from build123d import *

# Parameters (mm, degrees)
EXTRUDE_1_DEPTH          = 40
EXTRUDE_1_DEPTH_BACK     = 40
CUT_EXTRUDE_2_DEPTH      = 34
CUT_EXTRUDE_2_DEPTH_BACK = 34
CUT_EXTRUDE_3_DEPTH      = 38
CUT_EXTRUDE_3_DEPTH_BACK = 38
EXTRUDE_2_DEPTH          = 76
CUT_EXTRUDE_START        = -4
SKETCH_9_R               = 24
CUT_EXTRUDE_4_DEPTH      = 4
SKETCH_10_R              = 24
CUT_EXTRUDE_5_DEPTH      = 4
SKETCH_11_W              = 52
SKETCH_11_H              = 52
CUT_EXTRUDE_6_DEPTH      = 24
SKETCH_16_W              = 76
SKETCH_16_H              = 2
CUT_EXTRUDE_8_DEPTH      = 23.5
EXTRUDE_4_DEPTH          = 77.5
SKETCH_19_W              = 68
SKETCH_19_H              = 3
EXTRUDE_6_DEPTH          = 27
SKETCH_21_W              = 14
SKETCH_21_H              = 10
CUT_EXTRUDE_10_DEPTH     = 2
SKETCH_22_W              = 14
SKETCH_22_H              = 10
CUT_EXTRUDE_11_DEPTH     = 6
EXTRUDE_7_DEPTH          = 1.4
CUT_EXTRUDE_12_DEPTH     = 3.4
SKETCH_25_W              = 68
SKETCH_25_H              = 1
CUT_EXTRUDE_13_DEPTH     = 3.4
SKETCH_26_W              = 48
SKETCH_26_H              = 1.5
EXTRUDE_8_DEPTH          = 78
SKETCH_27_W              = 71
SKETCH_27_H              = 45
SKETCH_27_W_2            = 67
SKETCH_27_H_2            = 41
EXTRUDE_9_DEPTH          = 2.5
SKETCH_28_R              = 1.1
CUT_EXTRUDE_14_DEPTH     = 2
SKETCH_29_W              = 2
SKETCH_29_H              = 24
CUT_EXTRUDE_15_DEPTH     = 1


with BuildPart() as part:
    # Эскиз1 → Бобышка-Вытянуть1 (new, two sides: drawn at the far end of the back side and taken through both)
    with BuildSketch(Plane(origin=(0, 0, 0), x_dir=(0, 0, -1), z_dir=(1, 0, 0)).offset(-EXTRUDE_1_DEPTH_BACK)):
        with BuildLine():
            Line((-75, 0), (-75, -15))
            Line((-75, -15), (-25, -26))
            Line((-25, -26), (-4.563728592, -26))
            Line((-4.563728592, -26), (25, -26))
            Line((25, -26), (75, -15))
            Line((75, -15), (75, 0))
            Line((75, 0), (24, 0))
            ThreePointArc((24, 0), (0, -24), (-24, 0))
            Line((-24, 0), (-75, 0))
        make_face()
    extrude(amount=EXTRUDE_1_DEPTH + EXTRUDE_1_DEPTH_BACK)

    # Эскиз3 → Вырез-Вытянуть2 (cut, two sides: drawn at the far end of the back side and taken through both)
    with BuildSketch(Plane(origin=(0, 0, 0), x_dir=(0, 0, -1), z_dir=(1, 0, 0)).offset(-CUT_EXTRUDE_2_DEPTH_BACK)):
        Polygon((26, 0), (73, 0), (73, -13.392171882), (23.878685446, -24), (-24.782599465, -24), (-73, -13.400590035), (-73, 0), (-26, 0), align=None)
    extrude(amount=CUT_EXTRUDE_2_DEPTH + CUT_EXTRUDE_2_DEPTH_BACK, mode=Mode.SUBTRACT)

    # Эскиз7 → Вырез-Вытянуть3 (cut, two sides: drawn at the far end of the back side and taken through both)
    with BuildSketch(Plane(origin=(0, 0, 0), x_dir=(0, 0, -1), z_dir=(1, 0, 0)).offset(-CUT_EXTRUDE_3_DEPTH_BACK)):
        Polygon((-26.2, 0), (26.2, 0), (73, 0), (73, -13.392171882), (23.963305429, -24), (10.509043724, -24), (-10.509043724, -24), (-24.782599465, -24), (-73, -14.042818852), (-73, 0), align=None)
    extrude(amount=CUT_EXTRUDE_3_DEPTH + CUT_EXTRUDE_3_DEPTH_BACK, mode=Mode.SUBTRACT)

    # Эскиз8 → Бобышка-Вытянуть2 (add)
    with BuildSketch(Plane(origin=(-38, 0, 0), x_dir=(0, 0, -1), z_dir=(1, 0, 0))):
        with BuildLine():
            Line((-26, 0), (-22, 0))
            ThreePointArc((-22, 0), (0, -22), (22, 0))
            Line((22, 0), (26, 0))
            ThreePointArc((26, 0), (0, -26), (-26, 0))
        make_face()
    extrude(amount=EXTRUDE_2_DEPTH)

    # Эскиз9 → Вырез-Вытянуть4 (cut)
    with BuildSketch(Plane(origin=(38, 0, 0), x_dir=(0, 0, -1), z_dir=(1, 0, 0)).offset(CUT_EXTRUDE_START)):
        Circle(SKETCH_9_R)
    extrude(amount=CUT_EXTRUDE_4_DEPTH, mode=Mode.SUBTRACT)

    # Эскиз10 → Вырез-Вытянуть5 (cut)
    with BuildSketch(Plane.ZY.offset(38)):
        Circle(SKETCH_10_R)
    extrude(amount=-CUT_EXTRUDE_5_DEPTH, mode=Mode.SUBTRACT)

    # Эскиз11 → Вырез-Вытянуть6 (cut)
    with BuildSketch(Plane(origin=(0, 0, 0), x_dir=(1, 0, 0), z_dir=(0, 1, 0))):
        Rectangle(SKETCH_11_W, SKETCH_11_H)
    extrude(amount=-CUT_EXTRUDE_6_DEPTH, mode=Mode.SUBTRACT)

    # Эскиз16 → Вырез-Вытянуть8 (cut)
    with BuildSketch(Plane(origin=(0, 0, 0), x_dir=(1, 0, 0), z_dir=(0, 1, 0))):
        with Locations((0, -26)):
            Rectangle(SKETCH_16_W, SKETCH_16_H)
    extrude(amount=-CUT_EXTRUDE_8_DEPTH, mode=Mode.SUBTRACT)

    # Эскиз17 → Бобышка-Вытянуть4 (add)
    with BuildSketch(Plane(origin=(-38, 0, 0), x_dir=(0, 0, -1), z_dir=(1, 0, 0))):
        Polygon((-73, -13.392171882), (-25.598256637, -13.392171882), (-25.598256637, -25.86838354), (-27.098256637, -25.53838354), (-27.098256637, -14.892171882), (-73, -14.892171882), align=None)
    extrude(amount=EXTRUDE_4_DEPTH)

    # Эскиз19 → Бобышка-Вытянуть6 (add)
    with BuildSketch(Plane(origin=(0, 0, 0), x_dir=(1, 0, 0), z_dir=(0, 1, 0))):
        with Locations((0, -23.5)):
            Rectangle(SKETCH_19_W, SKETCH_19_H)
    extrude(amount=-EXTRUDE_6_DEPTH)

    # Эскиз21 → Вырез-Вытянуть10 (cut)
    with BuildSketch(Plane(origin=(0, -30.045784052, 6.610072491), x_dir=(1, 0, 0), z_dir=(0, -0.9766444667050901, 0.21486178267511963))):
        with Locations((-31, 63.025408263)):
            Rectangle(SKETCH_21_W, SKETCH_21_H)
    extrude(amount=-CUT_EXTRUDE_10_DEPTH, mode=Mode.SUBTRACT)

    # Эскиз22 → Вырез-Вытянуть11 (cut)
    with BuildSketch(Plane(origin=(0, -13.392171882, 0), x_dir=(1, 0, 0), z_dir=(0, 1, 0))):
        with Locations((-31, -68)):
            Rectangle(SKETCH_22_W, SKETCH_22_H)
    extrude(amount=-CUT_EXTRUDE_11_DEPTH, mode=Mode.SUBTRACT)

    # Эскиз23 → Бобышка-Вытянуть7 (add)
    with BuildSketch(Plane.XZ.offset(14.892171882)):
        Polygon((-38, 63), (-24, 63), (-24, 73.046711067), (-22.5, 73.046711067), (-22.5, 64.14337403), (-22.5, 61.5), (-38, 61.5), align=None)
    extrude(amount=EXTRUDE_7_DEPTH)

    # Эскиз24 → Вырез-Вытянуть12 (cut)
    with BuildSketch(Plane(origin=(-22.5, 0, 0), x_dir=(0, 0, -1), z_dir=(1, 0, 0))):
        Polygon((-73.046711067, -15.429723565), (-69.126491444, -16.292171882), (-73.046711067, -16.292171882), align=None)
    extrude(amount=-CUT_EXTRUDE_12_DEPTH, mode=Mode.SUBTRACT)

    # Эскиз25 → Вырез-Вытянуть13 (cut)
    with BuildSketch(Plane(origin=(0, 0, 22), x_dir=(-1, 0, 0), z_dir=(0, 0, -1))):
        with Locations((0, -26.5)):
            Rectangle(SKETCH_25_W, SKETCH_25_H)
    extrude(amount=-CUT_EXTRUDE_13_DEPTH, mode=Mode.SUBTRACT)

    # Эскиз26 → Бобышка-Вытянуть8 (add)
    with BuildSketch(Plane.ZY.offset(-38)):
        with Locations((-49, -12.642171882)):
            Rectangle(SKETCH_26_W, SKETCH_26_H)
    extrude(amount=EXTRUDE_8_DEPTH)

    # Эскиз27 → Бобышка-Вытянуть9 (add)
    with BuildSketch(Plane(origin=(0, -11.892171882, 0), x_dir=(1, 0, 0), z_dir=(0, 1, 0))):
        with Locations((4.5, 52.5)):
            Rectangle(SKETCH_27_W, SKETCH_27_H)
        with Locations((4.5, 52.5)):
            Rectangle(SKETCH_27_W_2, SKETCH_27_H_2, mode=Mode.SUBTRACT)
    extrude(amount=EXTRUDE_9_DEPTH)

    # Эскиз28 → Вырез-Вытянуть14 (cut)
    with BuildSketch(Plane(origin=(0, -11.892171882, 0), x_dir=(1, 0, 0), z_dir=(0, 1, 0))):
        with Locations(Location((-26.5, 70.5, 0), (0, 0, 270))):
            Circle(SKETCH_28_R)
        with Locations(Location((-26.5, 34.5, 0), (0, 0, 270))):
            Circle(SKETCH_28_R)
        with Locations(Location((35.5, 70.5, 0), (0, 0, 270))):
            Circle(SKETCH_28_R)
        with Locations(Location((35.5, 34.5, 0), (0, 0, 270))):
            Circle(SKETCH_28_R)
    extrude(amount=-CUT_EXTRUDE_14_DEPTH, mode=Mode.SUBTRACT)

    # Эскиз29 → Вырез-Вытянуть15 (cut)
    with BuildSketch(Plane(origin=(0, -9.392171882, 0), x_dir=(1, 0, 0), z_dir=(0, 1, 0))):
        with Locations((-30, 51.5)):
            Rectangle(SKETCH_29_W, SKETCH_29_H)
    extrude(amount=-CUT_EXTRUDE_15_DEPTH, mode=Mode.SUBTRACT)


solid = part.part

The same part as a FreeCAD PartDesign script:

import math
import FreeCAD as App
import Part
import Sketcher
from FreeCAD import Vector


def add_polygon(sketch, points):
    """Adds a closed chain of lines whose ends are joined by coincident constraints."""
    first, n = sketch.GeometryCount, len(points)
    for a, b in zip(points, points[1:] + points[:1]):
        sketch.addGeometry(Part.LineSegment(App.Vector(*a, 0), App.Vector(*b, 0)), False)
    for i in range(n):
        sketch.addConstraint(Sketcher.Constraint("Coincident", first + i, 2, first + (i + 1) % n, 1))

doc = App.newDocument("Part")
params = doc.addObject("Spreadsheet::Sheet", "Params")
for row, (alias, value) in enumerate([
    ("sketch1_radius", "24 mm"),
    ("sketch1_width", "15 mm"),
    ("sketch1_height", "50 mm"),
    ("sketch1_height2", "51 mm"),
    ("pad1_length", "40 mm"),
    ("pad1_length2", "40 mm"),
    ("sketch2_height", "146 mm"),
    ("pocket1_length", "34 mm"),
    ("pocket1_length2", "34 mm"),
    ("sketch3_height", "146 mm"),
    ("pocket2_length", "38 mm"),
    ("pocket2_length2", "38 mm"),
    ("sketch4_radius", "26 mm"),
    ("sketch4_radius2", "22 mm"),
    ("pad2_length", "76 mm"),
    ("sketch5_diameter", "48 mm"),
    ("pocket3_length", "4 mm"),
    ("sketch6_diameter", "48 mm"),
    ("pocket4_length", "4 mm"),
    ("sketch7_width", "52 mm"),
    ("pocket5_length", "24 mm"),
    ("sketch8_width", "76 mm"),
    ("sketch8_height", "2 mm"),
    ("pocket6_length", "23.5 mm"),
    ("sketch9_width", "1.5 mm"),
    ("pad3_length", "77.5 mm"),
    ("sketch10_width", "68 mm"),
    ("sketch10_height", "3 mm"),
    ("pad4_length", "27 mm"),
    ("sketch11_width", "14 mm"),
    ("sketch11_height", "10 mm"),
    ("pocket7_length", "2 mm"),
    ("sketch12_width", "14 mm"),
    ("sketch12_height", "10 mm"),
    ("pocket8_length", "6 mm"),
    ("sketch13_width", "14 mm"),
    ("sketch13_width2", "15.5 mm"),
    ("pad5_length", "1.4 mm"),
    ("pocket9_length", "3.4 mm"),
    ("sketch15_width", "68 mm"),
    ("sketch15_height", "1 mm"),
    ("pocket10_length", "3.4 mm"),
    ("sketch16_height", "48 mm"),
    ("sketch16_width", "1.5 mm"),
    ("pad6_length", "78 mm"),
    ("sketch17_width", "71 mm"),
    ("sketch17_width2", "67 mm"),
    ("sketch17_height", "45 mm"),
    ("sketch17_height2", "41 mm"),
    ("pad7_length", "2.5 mm"),
    ("sketch18_diameter", "2.2 mm"),
    ("pocket11_length", "2 mm"),
    ("sketch19_width", "2 mm"),
    ("sketch19_height", "24 mm"),
    ("pocket12_length", "1 mm"),
], start=1):
    params.set(f"A{row}", alias)
    params.set(f"B{row}", "=" + value)
    params.setAlias(f"B{row}", alias)

body = doc.addObject("PartDesign::Body", "Body")

sketch1 = body.newObject("Sketcher::SketchObject", "Sketch")
sketch1.AttachmentSupport = (doc.getObject("YZ_Plane"), [""])
sketch1.MapMode = "FlatFace"
sketch1.addGeometry([
    Part.LineSegment(Vector(0, 75, 0), Vector(-15, 75, 0)),
    Part.LineSegment(Vector(-15, 75, 0), Vector(-26, 25, 0)),
    Part.LineSegment(Vector(-26, 25, 0), Vector(-26, -25, 0)),
    Part.LineSegment(Vector(-26, -25, 0), Vector(-15, -75, 0)),
    Part.LineSegment(Vector(-15, -75, 0), Vector(0, -75, 0)),
    Part.LineSegment(Vector(0, -75, 0), Vector(0, -24, 0)),
    Part.ArcOfCircle(Part.Circle(Vector(0, 0, 0), Vector(0, 0, 1), 24), math.radians(90), math.radians(270)),
    Part.LineSegment(Vector(0, 24, 0), Vector(0, 75, 0)),
], False)
sketch1.addConstraint([
    Sketcher.Constraint("Coincident", 0, 2, 1, 1),
    Sketcher.Constraint("Coincident", 1, 2, 2, 1),
    Sketcher.Constraint("Coincident", 2, 2, 3, 1),
    Sketcher.Constraint("Coincident", 3, 2, 4, 1),
    Sketcher.Constraint("Coincident", 4, 2, 5, 1),
    Sketcher.Constraint("Coincident", 5, 2, 6, 2),
    Sketcher.Constraint("Coincident", 6, 1, 7, 1),
    Sketcher.Constraint("Coincident", 7, 2, 0, 1),
    Sketcher.Constraint("Horizontal", 0),
    Sketcher.Constraint("Vertical", 2),
    Sketcher.Constraint("Horizontal", 4),
    Sketcher.Constraint("Vertical", 5),
    Sketcher.Constraint("Vertical", 7),
    Sketcher.Constraint("Coincident", 6, 3, -1, 1),
    Sketcher.Constraint("Symmetric", 4, 2, 7, 2, -1, 1),
    Sketcher.Constraint("PointOnObject", 4, 2, -2),
    Sketcher.Constraint("Vertical", 0, 2, 3, 2),
    Sketcher.Constraint("Equal", 1, 3),
    Sketcher.Constraint("Radius", 6, 24.0),
    Sketcher.Constraint("DistanceX", 0, 2, 0, 1, 15.0),
    Sketcher.Constraint("DistanceY", 2, 2, 2, 1, 50.0),
    Sketcher.Constraint("DistanceY", 5, 1, 5, 2, 51.0),
    Sketcher.Constraint("DistanceX", 1, 2, -1, 1, 26.0),
])
sketch1.setExpression("Constraints[18]", "Params.sketch1_radius")
sketch1.setExpression("Constraints[19]", "Params.sketch1_width")
sketch1.setExpression("Constraints[20]", "Params.sketch1_height")
sketch1.setExpression("Constraints[21]", "Params.sketch1_height2")
pad1 = body.newObject("PartDesign::Pad", "Pad")
pad1.Profile = sketch1
pad1.Type = "TwoLengths"
pad1.setExpression("Length", "Params.pad1_length")
pad1.setExpression("Length2", "Params.pad1_length2")

sketch2 = body.newObject("Sketcher::SketchObject", "Sketch001")
sketch2.AttachmentSupport = (doc.getObject("YZ_Plane"), [""])
sketch2.MapMode = "FlatFace"
add_polygon(sketch2, [(0, -73), (0, 73), (-13, 73), (-24, 25), (-24, -24), (-13, -73)])
sketch2.addConstraint([
    Sketcher.Constraint("Vertical", 0),
    Sketcher.Constraint("Horizontal", 1),
    Sketcher.Constraint("Vertical", 3),
    Sketcher.Constraint("Horizontal", 5),
    Sketcher.Constraint("Symmetric", 0, 2, 5, 2, -1, 1),
    Sketcher.Constraint("DistanceY", 0, 1, 0, 2, 146.0),
    Sketcher.Constraint("DistanceX", 2, 2, -1, 1, 24.0),
    Sketcher.Constraint("DistanceX", 1, 2, 1, 1, 13.40059),
    Sketcher.Constraint("DistanceX", 5, 1, 5, 2, 13.392172),
    Sketcher.Constraint("DistanceY", -1, 1, 2, 2, 24.782599),
    Sketcher.Constraint("DistanceY", 3, 2, 3, 1, 48.661285),
])
sketch2.setExpression("Constraints[11]", "Params.sketch2_height")
pocket1 = body.newObject("PartDesign::Pocket", "Pocket")
pocket1.Profile = sketch2
pocket1.Type = "TwoLengths"
pocket1.setExpression("Length", "Params.pocket1_length")
pocket1.setExpression("Length2", "Params.pocket1_length2")
pocket1.Reversed = True

sketch3 = body.newObject("Sketcher::SketchObject", "Sketch002")
sketch3.AttachmentSupport = (doc.getObject("YZ_Plane"), [""])
sketch3.MapMode = "FlatFace"
add_polygon(sketch3, [(0, -73), (0, 73), (-14, 73), (-24, 25), (-24, -24), (-13, -73)])
sketch3.addConstraint([
    Sketcher.Constraint("Vertical", 0),
    Sketcher.Constraint("Horizontal", 1),
    Sketcher.Constraint("Vertical", 3),
    Sketcher.Constraint("Horizontal", 5),
    Sketcher.Constraint("Symmetric", 0, 2, 5, 2, -1, 1),
    Sketcher.Constraint("DistanceY", 0, 1, 0, 2, 146.0),
    Sketcher.Constraint("DistanceX", 2, 2, -1, 1, 24.0),
    Sketcher.Constraint("DistanceX", 1, 2, 1, 1, 14.042819),
    Sketcher.Constraint("DistanceX", 5, 1, 5, 2, 13.392172),
    Sketcher.Constraint("DistanceY", -1, 1, 2, 2, 24.782599),
    Sketcher.Constraint("DistanceY", 3, 2, 3, 1, 48.745905),
])
sketch3.setExpression("Constraints[11]", "Params.sketch3_height")
pocket2 = body.newObject("PartDesign::Pocket", "Pocket001")
pocket2.Profile = sketch3
pocket2.Type = "TwoLengths"
pocket2.setExpression("Length", "Params.pocket2_length")
pocket2.setExpression("Length2", "Params.pocket2_length2")
pocket2.Reversed = True

sketch4 = body.newObject("Sketcher::SketchObject", "Sketch003")
sketch4.AttachmentSupport = (doc.getObject("YZ_Plane"), [""])
sketch4.MapMode = "FlatFace"
sketch4.AttachmentOffset = App.Placement(Vector(0, 0, -38), App.Rotation())
sketch4.addGeometry([
    Part.LineSegment(Vector(0, 22, 0), Vector(0, 26, 0)),
    Part.ArcOfCircle(Part.Circle(Vector(0, 0, 0), Vector(0, 0, 1), 26), math.radians(90), math.radians(270)),
    Part.LineSegment(Vector(0, -26, 0), Vector(0, -22, 0)),
    Part.ArcOfCircle(Part.Circle(Vector(0, 0, 0), Vector(0, 0, 1), 22), math.radians(90), math.radians(270)),
], False)
sketch4.addConstraint([
    Sketcher.Constraint("Coincident", 0, 2, 1, 1),
    Sketcher.Constraint("Coincident", 1, 2, 2, 1),
    Sketcher.Constraint("Coincident", 2, 2, 3, 2),
    Sketcher.Constraint("Coincident", 3, 1, 0, 1),
    Sketcher.Constraint("Vertical", 0),
    Sketcher.Constraint("Vertical", 2),
    Sketcher.Constraint("Coincident", 1, 3, -1, 1),
    Sketcher.Constraint("Coincident", 3, 3, -1, 1),
    Sketcher.Constraint("PointOnObject", 0, 2, -2),
    Sketcher.Constraint("PointOnObject", 1, 2, -2),
    Sketcher.Constraint("Radius", 1, 26.0),
    Sketcher.Constraint("Radius", 3, 22.0),
])
sketch4.setExpression("Constraints[10]", "Params.sketch4_radius")
sketch4.setExpression("Constraints[11]", "Params.sketch4_radius2")
pad2 = body.newObject("PartDesign::Pad", "Pad001")
pad2.Profile = sketch4
pad2.setExpression("Length", "Params.pad2_length")

sketch5 = body.newObject("Sketcher::SketchObject", "Sketch004")
sketch5.AttachmentSupport = (doc.getObject("YZ_Plane"), [""])
sketch5.MapMode = "FlatFace"
sketch5.AttachmentOffset = App.Placement(Vector(0, 0, 34), App.Rotation())
sketch5.addGeometry(Part.Circle(Vector(0, 0, 0), Vector(0, 0, 1), 24), False)
sketch5.addConstraint([
    Sketcher.Constraint("Coincident", 0, 3, -1, 1),
    Sketcher.Constraint("Diameter", 0, 48.0),
])
sketch5.setExpression("Constraints[1]", "Params.sketch5_diameter")
pocket3 = body.newObject("PartDesign::Pocket", "Pocket002")
pocket3.Profile = sketch5
pocket3.setExpression("Length", "Params.pocket3_length")
pocket3.Reversed = True

sketch6 = body.newObject("Sketcher::SketchObject", "Sketch005")
sketch6.AttachmentSupport = (doc.getObject("YZ_Plane"), [""])
sketch6.MapMode = "FlatFace"
sketch6.AttachmentOffset = App.Placement(Vector(0, 0, -38), App.Rotation())
sketch6.addGeometry(Part.Circle(Vector(0, 0, 0), Vector(0, 0, 1), 24), False)
sketch6.addConstraint([
    Sketcher.Constraint("Coincident", 0, 3, -1, 1),
    Sketcher.Constraint("Diameter", 0, 48.0),
])
sketch6.setExpression("Constraints[1]", "Params.sketch6_diameter")
pocket4 = body.newObject("PartDesign::Pocket", "Pocket003")
pocket4.Profile = sketch6
pocket4.setExpression("Length", "Params.pocket4_length")
pocket4.Reversed = True

sketch7 = body.newObject("Sketcher::SketchObject", "Sketch006")
sketch7.AttachmentSupport = (doc.getObject("XZ_Plane"), [""])
sketch7.MapMode = "FlatFace"
add_polygon(sketch7, [(-26, -26), (-26, 26), (26, 26), (26, -26)])
sketch7.addConstraint([
    Sketcher.Constraint("Vertical", 0),
    Sketcher.Constraint("Horizontal", 1),
    Sketcher.Constraint("Vertical", 2),
    Sketcher.Constraint("Horizontal", 3),
    Sketcher.Constraint("Symmetric", 0, 2, 2, 2, -1, 1),
    Sketcher.Constraint("Equal", 3, 0),
    Sketcher.Constraint("DistanceX", 1, 1, 1, 2, 52.0),
])
sketch7.setExpression("Constraints[10]", "Params.sketch7_width")
pocket5 = body.newObject("PartDesign::Pocket", "Pocket004")
pocket5.Profile = sketch7
pocket5.setExpression("Length", "Params.pocket5_length")
pocket5.Reversed = True

sketch8 = body.newObject("Sketcher::SketchObject", "Sketch007")
sketch8.AttachmentSupport = (doc.getObject("XZ_Plane"), [""])
sketch8.MapMode = "FlatFace"
add_polygon(sketch8, [(-38, 25), (-38, 27), (38, 27), (38, 25)])
sketch8.addConstraint([
    Sketcher.Constraint("Vertical", 0),
    Sketcher.Constraint("Horizontal", 1),
    Sketcher.Constraint("Vertical", 2),
    Sketcher.Constraint("Horizontal", 3),
    Sketcher.Constraint("DistanceX", 1, 1, 1, 2, 76.0),
    Sketcher.Constraint("DistanceY", 0, 1, 0, 2, 2.0),
    Sketcher.Constraint("DistanceX", 0, 2, -1, 1, 38.0),
    Sketcher.Constraint("DistanceY", -1, 1, 0, 2, 27.0),
])
sketch8.setExpression("Constraints[8]", "Params.sketch8_width")
sketch8.setExpression("Constraints[9]", "Params.sketch8_height")
pocket6 = body.newObject("PartDesign::Pocket", "Pocket005")
pocket6.Profile = sketch8
pocket6.setExpression("Length", "Params.pocket6_length")
pocket6.Reversed = True

sketch9 = body.newObject("Sketcher::SketchObject", "Sketch008")
sketch9.AttachmentSupport = (doc.getObject("YZ_Plane"), [""])
sketch9.MapMode = "FlatFace"
sketch9.AttachmentOffset = App.Placement(Vector(0, 0, -38), App.Rotation())
add_polygon(sketch9, [(-13.4, 25.6), (-13.4, 73), (-14.9, 73), (-14.9, 27.1), (-25.5, 27.1), (-25.9, 25.6)])
sketch9.addConstraint([
    Sketcher.Constraint("Vertical", 0),
    Sketcher.Constraint("Horizontal", 1),
    Sketcher.Constraint("Vertical", 2),
    Sketcher.Constraint("Horizontal", 3),
    Sketcher.Constraint("Horizontal", 5),
    Sketcher.Constraint("DistanceX", 1, 2, 1, 1, 1.5),
    Sketcher.Constraint("DistanceY", -1, 1, 0, 2, 73.0),
    Sketcher.Constraint("DistanceY", 4, 2, 3, 2, 1.5),
    Sketcher.Constraint("DistanceX", 4, 2, 3, 2, 0.33),
    Sketcher.Constraint("DistanceX", 3, 2, 3, 1, 10.646212),
    Sketcher.Constraint("DistanceY", 0, 1, 0, 2, 47.401743),
    Sketcher.Constraint("DistanceX", 0, 2, -1, 1, 13.392172),
])
sketch9.setExpression("Constraints[11]", "Params.sketch9_width")
pad3 = body.newObject("PartDesign::Pad", "Pad002")
pad3.Profile = sketch9
pad3.setExpression("Length", "Params.pad3_length")

sketch10 = body.newObject("Sketcher::SketchObject", "Sketch009")
sketch10.AttachmentSupport = (doc.getObject("XZ_Plane"), [""])
sketch10.MapMode = "FlatFace"
add_polygon(sketch10, [(-34, 22), (-34, 25), (34, 25), (34, 22)])
sketch10.addConstraint([
    Sketcher.Constraint("Vertical", 0),
    Sketcher.Constraint("Horizontal", 1),
    Sketcher.Constraint("Vertical", 2),
    Sketcher.Constraint("Horizontal", 3),
    Sketcher.Constraint("DistanceX", 1, 1, 1, 2, 68.0),
    Sketcher.Constraint("DistanceY", 0, 1, 0, 2, 3.0),
    Sketcher.Constraint("DistanceX", 0, 2, -1, 1, 34.0),
    Sketcher.Constraint("DistanceY", -1, 1, 0, 2, 25.0),
])
sketch10.setExpression("Constraints[8]", "Params.sketch10_width")
sketch10.setExpression("Constraints[9]", "Params.sketch10_height")
pad4 = body.newObject("PartDesign::Pad", "Pad003")
pad4.Profile = sketch10
pad4.setExpression("Length", "Params.pad4_length")

sketch11 = body.newObject("Sketcher::SketchObject", "Sketch010")
sketch11.Placement = App.Placement(Vector(0, -30.045784, 6.610072), App.Rotation(Vector(1, 0, 0), Vector(0, 0.214861783, 0.976644467), Vector(0, -0.976644467, 0.214861783), "ZXY"))
add_polygon(sketch11, [(-38, 68), (-38, 58), (-24, 58), (-24, 68)])
sketch11.addConstraint([
    Sketcher.Constraint("Vertical", 0),
    Sketcher.Constraint("Horizontal", 1),
    Sketcher.Constraint("Vertical", 2),
    Sketcher.Constraint("Horizontal", 3),
    Sketcher.Constraint("DistanceX", 1, 1, 1, 2, 14.0),
    Sketcher.Constraint("DistanceY", 0, 2, 0, 1, 10.0),
    Sketcher.Constraint("DistanceX", 0, 2, -1, 1, 38.0),
    Sketcher.Constraint("DistanceY", -1, 1, 0, 2, 58.025408),
])
sketch11.setExpression("Constraints[8]", "Params.sketch11_width")
sketch11.setExpression("Constraints[9]", "Params.sketch11_height")
pocket7 = body.newObject("PartDesign::Pocket", "Pocket006")
pocket7.Profile = sketch11
pocket7.setExpression("Length", "Params.pocket7_length")

sketch12 = body.newObject("Sketcher::SketchObject", "Sketch011")
sketch12.AttachmentSupport = (doc.getObject("XZ_Plane"), [""])
sketch12.MapMode = "FlatFace"
sketch12.AttachmentOffset = App.Placement(Vector(0, 0, 13.392172), App.Rotation())
add_polygon(sketch12, [(-38, 63), (-38, 73), (-24, 73), (-24, 63)])
sketch12.addConstraint([
    Sketcher.Constraint("Vertical", 0),
    Sketcher.Constraint("Horizontal", 1),
    Sketcher.Constraint("Vertical", 2),
    Sketcher.Constraint("Horizontal", 3),
    Sketcher.Constraint("DistanceX", 1, 1, 1, 2, 14.0),
    Sketcher.Constraint("DistanceY", 0, 1, 0, 2, 10.0),
    Sketcher.Constraint("DistanceX", 0, 2, -1, 1, 38.0),
    Sketcher.Constraint("DistanceY", -1, 1, 0, 2, 73.0),
])
sketch12.setExpression("Constraints[8]", "Params.sketch12_width")
sketch12.setExpression("Constraints[9]", "Params.sketch12_height")
pocket8 = body.newObject("PartDesign::Pocket", "Pocket007")
pocket8.Profile = sketch12
pocket8.setExpression("Length", "Params.pocket8_length")
pocket8.Reversed = True

sketch13 = body.newObject("Sketcher::SketchObject", "Sketch012")
sketch13.AttachmentSupport = (doc.getObject("XZ_Plane"), [""])
sketch13.MapMode = "FlatFace"
sketch13.AttachmentOffset = App.Placement(Vector(0, 0, 14.892172), App.Rotation())
add_polygon(sketch13, [(-24, 63), (-38, 63), (-38, 61.5), (-22.5, 61.5), (-22.5, 73), (-24, 73)])
sketch13.addConstraint([
    Sketcher.Constraint("Horizontal", 0),
    Sketcher.Constraint("Vertical", 1),
    Sketcher.Constraint("Horizontal", 2),
    Sketcher.Constraint("Vertical", 3),
    Sketcher.Constraint("Horizontal", 4),
    Sketcher.Constraint("Vertical", 5),
    Sketcher.Constraint("Equal", 4, 1),
    Sketcher.Constraint("DistanceX", 0, 2, 0, 1, 14.0),
    Sketcher.Constraint("DistanceX", 2, 1, 2, 2, 15.5),
    Sketcher.Constraint("DistanceX", 0, 2, -1, 1, 38.0),
    Sketcher.Constraint("DistanceY", -1, 1, 0, 2, 63.0),
    Sketcher.Constraint("DistanceY", 3, 1, 3, 2, 11.546711),
])
sketch13.setExpression("Constraints[13]", "Params.sketch13_width")
sketch13.setExpression("Constraints[14]", "Params.sketch13_width2")
pad5 = body.newObject("PartDesign::Pad", "Pad004")
pad5.Profile = sketch13
pad5.setExpression("Length", "Params.pad5_length")

sketch14 = body.newObject("Sketcher::SketchObject", "Sketch013")
sketch14.AttachmentSupport = (doc.getObject("YZ_Plane"), [""])
sketch14.MapMode = "FlatFace"
sketch14.AttachmentOffset = App.Placement(Vector(0, 0, -22.5), App.Rotation())
add_polygon(sketch14, [(-16.3, 69.1), (-15.4, 73), (-16.3, 73)])
sketch14.addConstraint([
    Sketcher.Constraint("Horizontal", 1),
    Sketcher.Constraint("Vertical", 2),
    Sketcher.Constraint("DistanceX", 1, 2, 1, 1, 0.862448),
    Sketcher.Constraint("DistanceY", 2, 2, 2, 1, 3.92022),
    Sketcher.Constraint("DistanceY", -1, 1, 0, 2, 73.046711),
    Sketcher.Constraint("DistanceX", 1, 2, -1, 1, 16.292172),
])
pocket9 = body.newObject("PartDesign::Pocket", "Pocket008")
pocket9.Profile = sketch14
pocket9.setExpression("Length", "Params.pocket9_length")

sketch15 = body.newObject("Sketcher::SketchObject", "Sketch014")
sketch15.AttachmentSupport = (doc.getObject("XY_Plane"), [""])
sketch15.MapMode = "FlatFace"
sketch15.AttachmentOffset = App.Placement(Vector(0, 0, 22), App.Rotation())
add_polygon(sketch15, [(34, -26), (34, -27), (-34, -27), (-34, -26)])
sketch15.addConstraint([
    Sketcher.Constraint("Vertical", 0),
    Sketcher.Constraint("Horizontal", 1),
    Sketcher.Constraint("Vertical", 2),
    Sketcher.Constraint("Horizontal", 3),
    Sketcher.Constraint("DistanceX", 1, 2, 1, 1, 68.0),
    Sketcher.Constraint("DistanceY", 0, 2, 0, 1, 1.0),
    Sketcher.Constraint("DistanceX", -1, 1, 0, 2, 34.0),
    Sketcher.Constraint("DistanceY", 0, 2, -1, 1, 27.0),
])
sketch15.setExpression("Constraints[8]", "Params.sketch15_width")
sketch15.setExpression("Constraints[9]", "Params.sketch15_height")
pocket10 = body.newObject("PartDesign::Pocket", "Pocket009")
pocket10.Profile = sketch15
pocket10.setExpression("Length", "Params.pocket10_length")
pocket10.Reversed = True

sketch16 = body.newObject("Sketcher::SketchObject", "Sketch015")
sketch16.AttachmentSupport = (doc.getObject("YZ_Plane"), [""])
sketch16.MapMode = "FlatFace"
sketch16.AttachmentOffset = App.Placement(Vector(0, 0, 38), App.Rotation())
add_polygon(sketch16, [(-11.9, -73), (-13.4, -73), (-13.4, -25), (-11.9, -25)])
sketch16.addConstraint([
    Sketcher.Constraint("Horizontal", 0),
    Sketcher.Constraint("Vertical", 1),
    Sketcher.Constraint("Horizontal", 2),
    Sketcher.Constraint("Vertical", 3),
    Sketcher.Constraint("DistanceY", 1, 1, 1, 2, 48.0),
    Sketcher.Constraint("DistanceX", 0, 2, 0, 1, 1.5),
    Sketcher.Constraint("DistanceY", 0, 2, -1, 1, 73.0),
    Sketcher.Constraint("DistanceX", 0, 2, -1, 1, 13.392172),
])
sketch16.setExpression("Constraints[8]", "Params.sketch16_height")
sketch16.setExpression("Constraints[9]", "Params.sketch16_width")
pad6 = body.newObject("PartDesign::Pad", "Pad005")
pad6.Profile = sketch16
pad6.setExpression("Length", "Params.pad6_length")
pad6.Reversed = True

sketch17 = body.newObject("Sketcher::SketchObject", "Sketch016")
sketch17.AttachmentSupport = (doc.getObject("XZ_Plane"), [""])
sketch17.MapMode = "FlatFace"
sketch17.AttachmentOffset = App.Placement(Vector(0, 0, 11.892172), App.Rotation())
add_polygon(sketch17, [(-31, -75), (-31, -30), (40, -30), (40, -75)])
add_polygon(sketch17, [(38, -32), (-29, -32), (-29, -73), (38, -73)])
sketch17.addConstraint([
    Sketcher.Constraint("Vertical", 0),
    Sketcher.Constraint("Horizontal", 1),
    Sketcher.Constraint("Vertical", 2),
    Sketcher.Constraint("Horizontal", 3),
    Sketcher.Constraint("Horizontal", 4),
    Sketcher.Constraint("Vertical", 5),
    Sketcher.Constraint("Horizontal", 6),
    Sketcher.Constraint("Vertical", 7),
    Sketcher.Constraint("DistanceX", 1, 1, 1, 2, 71.0),
    Sketcher.Constraint("DistanceX", 4, 2, 4, 1, 67.0),
    Sketcher.Constraint("DistanceY", 0, 1, 0, 2, 45.0),
    Sketcher.Constraint("DistanceY", 5, 2, 5, 1, 41.0),
    Sketcher.Constraint("DistanceX", 0, 2, -1, 1, 31.0),
    Sketcher.Constraint("DistanceY", 0, 2, -1, 1, 30.0),
    Sketcher.Constraint("DistanceX", 4, 2, -1, 1, 29.0),
    Sketcher.Constraint("DistanceY", 4, 2, -1, 1, 32.0),
])
sketch17.setExpression("Constraints[16]", "Params.sketch17_width")
sketch17.setExpression("Constraints[17]", "Params.sketch17_width2")
sketch17.setExpression("Constraints[18]", "Params.sketch17_height")
sketch17.setExpression("Constraints[19]", "Params.sketch17_height2")
pad7 = body.newObject("PartDesign::Pad", "Pad006")
pad7.Profile = sketch17
pad7.setExpression("Length", "Params.pad7_length")
pad7.Reversed = True

sketch18 = body.newObject("Sketcher::SketchObject", "Sketch017")
sketch18.AttachmentSupport = (doc.getObject("XZ_Plane"), [""])
sketch18.MapMode = "FlatFace"
sketch18.AttachmentOffset = App.Placement(Vector(0, 0, 11.892172), App.Rotation())
sketch18.addGeometry([
    Part.Circle(Vector(-26.5, -70.5, 0), Vector(0, 0, 1), 1.1),
    Part.Circle(Vector(-26.5, -34.5, 0), Vector(0, 0, 1), 1.1),
    Part.Circle(Vector(35.5, -70.5, 0), Vector(0, 0, 1), 1.1),
    Part.Circle(Vector(35.5, -34.5, 0), Vector(0, 0, 1), 1.1),
], False)
sketch18.addConstraint([
    Sketcher.Constraint("Equal", 0, 1),
    Sketcher.Constraint("Equal", 1, 2),
    Sketcher.Constraint("Equal", 2, 3),
    Sketcher.Constraint("Horizontal", 0, 3, 2, 3),
    Sketcher.Constraint("Horizontal", 1, 3, 3, 3),
    Sketcher.Constraint("Vertical", 0, 3, 1, 3),
    Sketcher.Constraint("Vertical", 2, 3, 3, 3),
    Sketcher.Constraint("Diameter", 0, 2.2),
    Sketcher.Constraint("DistanceY", 0, 3, 1, 3, 36.0),
    Sketcher.Constraint("DistanceX", 0, 3, 2, 3, 62.0),
    Sketcher.Constraint("DistanceX", 0, 3, -1, 1, 26.5),
    Sketcher.Constraint("DistanceY", 0, 3, -1, 1, 70.5),
])
sketch18.setExpression("Constraints[7]", "Params.sketch18_diameter")
pocket11 = body.newObject("PartDesign::Pocket", "Pocket010")
pocket11.Profile = sketch18
pocket11.setExpression("Length", "Params.pocket11_length")
pocket11.Reversed = True

sketch19 = body.newObject("Sketcher::SketchObject", "Sketch018")
sketch19.AttachmentSupport = (doc.getObject("XZ_Plane"), [""])
sketch19.MapMode = "FlatFace"
sketch19.AttachmentOffset = App.Placement(Vector(0, 0, 9.392172), App.Rotation())
add_polygon(sketch19, [(-31, -63.5), (-31, -39.5), (-29, -39.5), (-29, -63.5)])
sketch19.addConstraint([
    Sketcher.Constraint("Vertical", 0),
    Sketcher.Constraint("Horizontal", 1),
    Sketcher.Constraint("Vertical", 2),
    Sketcher.Constraint("Horizontal", 3),
    Sketcher.Constraint("DistanceX", 1, 1, 1, 2, 2.0),
    Sketcher.Constraint("DistanceY", 0, 1, 0, 2, 24.0),
    Sketcher.Constraint("DistanceX", 0, 2, -1, 1, 31.0),
    Sketcher.Constraint("DistanceY", 0, 2, -1, 1, 39.5),
])
sketch19.setExpression("Constraints[8]", "Params.sketch19_width")
sketch19.setExpression("Constraints[9]", "Params.sketch19_height")
pocket12 = body.newObject("PartDesign::Pocket", "Pocket011")
pocket12.Profile = sketch19
pocket12.setExpression("Length", "Params.pocket12_length")
pocket12.Reversed = True

doc.recompute()
